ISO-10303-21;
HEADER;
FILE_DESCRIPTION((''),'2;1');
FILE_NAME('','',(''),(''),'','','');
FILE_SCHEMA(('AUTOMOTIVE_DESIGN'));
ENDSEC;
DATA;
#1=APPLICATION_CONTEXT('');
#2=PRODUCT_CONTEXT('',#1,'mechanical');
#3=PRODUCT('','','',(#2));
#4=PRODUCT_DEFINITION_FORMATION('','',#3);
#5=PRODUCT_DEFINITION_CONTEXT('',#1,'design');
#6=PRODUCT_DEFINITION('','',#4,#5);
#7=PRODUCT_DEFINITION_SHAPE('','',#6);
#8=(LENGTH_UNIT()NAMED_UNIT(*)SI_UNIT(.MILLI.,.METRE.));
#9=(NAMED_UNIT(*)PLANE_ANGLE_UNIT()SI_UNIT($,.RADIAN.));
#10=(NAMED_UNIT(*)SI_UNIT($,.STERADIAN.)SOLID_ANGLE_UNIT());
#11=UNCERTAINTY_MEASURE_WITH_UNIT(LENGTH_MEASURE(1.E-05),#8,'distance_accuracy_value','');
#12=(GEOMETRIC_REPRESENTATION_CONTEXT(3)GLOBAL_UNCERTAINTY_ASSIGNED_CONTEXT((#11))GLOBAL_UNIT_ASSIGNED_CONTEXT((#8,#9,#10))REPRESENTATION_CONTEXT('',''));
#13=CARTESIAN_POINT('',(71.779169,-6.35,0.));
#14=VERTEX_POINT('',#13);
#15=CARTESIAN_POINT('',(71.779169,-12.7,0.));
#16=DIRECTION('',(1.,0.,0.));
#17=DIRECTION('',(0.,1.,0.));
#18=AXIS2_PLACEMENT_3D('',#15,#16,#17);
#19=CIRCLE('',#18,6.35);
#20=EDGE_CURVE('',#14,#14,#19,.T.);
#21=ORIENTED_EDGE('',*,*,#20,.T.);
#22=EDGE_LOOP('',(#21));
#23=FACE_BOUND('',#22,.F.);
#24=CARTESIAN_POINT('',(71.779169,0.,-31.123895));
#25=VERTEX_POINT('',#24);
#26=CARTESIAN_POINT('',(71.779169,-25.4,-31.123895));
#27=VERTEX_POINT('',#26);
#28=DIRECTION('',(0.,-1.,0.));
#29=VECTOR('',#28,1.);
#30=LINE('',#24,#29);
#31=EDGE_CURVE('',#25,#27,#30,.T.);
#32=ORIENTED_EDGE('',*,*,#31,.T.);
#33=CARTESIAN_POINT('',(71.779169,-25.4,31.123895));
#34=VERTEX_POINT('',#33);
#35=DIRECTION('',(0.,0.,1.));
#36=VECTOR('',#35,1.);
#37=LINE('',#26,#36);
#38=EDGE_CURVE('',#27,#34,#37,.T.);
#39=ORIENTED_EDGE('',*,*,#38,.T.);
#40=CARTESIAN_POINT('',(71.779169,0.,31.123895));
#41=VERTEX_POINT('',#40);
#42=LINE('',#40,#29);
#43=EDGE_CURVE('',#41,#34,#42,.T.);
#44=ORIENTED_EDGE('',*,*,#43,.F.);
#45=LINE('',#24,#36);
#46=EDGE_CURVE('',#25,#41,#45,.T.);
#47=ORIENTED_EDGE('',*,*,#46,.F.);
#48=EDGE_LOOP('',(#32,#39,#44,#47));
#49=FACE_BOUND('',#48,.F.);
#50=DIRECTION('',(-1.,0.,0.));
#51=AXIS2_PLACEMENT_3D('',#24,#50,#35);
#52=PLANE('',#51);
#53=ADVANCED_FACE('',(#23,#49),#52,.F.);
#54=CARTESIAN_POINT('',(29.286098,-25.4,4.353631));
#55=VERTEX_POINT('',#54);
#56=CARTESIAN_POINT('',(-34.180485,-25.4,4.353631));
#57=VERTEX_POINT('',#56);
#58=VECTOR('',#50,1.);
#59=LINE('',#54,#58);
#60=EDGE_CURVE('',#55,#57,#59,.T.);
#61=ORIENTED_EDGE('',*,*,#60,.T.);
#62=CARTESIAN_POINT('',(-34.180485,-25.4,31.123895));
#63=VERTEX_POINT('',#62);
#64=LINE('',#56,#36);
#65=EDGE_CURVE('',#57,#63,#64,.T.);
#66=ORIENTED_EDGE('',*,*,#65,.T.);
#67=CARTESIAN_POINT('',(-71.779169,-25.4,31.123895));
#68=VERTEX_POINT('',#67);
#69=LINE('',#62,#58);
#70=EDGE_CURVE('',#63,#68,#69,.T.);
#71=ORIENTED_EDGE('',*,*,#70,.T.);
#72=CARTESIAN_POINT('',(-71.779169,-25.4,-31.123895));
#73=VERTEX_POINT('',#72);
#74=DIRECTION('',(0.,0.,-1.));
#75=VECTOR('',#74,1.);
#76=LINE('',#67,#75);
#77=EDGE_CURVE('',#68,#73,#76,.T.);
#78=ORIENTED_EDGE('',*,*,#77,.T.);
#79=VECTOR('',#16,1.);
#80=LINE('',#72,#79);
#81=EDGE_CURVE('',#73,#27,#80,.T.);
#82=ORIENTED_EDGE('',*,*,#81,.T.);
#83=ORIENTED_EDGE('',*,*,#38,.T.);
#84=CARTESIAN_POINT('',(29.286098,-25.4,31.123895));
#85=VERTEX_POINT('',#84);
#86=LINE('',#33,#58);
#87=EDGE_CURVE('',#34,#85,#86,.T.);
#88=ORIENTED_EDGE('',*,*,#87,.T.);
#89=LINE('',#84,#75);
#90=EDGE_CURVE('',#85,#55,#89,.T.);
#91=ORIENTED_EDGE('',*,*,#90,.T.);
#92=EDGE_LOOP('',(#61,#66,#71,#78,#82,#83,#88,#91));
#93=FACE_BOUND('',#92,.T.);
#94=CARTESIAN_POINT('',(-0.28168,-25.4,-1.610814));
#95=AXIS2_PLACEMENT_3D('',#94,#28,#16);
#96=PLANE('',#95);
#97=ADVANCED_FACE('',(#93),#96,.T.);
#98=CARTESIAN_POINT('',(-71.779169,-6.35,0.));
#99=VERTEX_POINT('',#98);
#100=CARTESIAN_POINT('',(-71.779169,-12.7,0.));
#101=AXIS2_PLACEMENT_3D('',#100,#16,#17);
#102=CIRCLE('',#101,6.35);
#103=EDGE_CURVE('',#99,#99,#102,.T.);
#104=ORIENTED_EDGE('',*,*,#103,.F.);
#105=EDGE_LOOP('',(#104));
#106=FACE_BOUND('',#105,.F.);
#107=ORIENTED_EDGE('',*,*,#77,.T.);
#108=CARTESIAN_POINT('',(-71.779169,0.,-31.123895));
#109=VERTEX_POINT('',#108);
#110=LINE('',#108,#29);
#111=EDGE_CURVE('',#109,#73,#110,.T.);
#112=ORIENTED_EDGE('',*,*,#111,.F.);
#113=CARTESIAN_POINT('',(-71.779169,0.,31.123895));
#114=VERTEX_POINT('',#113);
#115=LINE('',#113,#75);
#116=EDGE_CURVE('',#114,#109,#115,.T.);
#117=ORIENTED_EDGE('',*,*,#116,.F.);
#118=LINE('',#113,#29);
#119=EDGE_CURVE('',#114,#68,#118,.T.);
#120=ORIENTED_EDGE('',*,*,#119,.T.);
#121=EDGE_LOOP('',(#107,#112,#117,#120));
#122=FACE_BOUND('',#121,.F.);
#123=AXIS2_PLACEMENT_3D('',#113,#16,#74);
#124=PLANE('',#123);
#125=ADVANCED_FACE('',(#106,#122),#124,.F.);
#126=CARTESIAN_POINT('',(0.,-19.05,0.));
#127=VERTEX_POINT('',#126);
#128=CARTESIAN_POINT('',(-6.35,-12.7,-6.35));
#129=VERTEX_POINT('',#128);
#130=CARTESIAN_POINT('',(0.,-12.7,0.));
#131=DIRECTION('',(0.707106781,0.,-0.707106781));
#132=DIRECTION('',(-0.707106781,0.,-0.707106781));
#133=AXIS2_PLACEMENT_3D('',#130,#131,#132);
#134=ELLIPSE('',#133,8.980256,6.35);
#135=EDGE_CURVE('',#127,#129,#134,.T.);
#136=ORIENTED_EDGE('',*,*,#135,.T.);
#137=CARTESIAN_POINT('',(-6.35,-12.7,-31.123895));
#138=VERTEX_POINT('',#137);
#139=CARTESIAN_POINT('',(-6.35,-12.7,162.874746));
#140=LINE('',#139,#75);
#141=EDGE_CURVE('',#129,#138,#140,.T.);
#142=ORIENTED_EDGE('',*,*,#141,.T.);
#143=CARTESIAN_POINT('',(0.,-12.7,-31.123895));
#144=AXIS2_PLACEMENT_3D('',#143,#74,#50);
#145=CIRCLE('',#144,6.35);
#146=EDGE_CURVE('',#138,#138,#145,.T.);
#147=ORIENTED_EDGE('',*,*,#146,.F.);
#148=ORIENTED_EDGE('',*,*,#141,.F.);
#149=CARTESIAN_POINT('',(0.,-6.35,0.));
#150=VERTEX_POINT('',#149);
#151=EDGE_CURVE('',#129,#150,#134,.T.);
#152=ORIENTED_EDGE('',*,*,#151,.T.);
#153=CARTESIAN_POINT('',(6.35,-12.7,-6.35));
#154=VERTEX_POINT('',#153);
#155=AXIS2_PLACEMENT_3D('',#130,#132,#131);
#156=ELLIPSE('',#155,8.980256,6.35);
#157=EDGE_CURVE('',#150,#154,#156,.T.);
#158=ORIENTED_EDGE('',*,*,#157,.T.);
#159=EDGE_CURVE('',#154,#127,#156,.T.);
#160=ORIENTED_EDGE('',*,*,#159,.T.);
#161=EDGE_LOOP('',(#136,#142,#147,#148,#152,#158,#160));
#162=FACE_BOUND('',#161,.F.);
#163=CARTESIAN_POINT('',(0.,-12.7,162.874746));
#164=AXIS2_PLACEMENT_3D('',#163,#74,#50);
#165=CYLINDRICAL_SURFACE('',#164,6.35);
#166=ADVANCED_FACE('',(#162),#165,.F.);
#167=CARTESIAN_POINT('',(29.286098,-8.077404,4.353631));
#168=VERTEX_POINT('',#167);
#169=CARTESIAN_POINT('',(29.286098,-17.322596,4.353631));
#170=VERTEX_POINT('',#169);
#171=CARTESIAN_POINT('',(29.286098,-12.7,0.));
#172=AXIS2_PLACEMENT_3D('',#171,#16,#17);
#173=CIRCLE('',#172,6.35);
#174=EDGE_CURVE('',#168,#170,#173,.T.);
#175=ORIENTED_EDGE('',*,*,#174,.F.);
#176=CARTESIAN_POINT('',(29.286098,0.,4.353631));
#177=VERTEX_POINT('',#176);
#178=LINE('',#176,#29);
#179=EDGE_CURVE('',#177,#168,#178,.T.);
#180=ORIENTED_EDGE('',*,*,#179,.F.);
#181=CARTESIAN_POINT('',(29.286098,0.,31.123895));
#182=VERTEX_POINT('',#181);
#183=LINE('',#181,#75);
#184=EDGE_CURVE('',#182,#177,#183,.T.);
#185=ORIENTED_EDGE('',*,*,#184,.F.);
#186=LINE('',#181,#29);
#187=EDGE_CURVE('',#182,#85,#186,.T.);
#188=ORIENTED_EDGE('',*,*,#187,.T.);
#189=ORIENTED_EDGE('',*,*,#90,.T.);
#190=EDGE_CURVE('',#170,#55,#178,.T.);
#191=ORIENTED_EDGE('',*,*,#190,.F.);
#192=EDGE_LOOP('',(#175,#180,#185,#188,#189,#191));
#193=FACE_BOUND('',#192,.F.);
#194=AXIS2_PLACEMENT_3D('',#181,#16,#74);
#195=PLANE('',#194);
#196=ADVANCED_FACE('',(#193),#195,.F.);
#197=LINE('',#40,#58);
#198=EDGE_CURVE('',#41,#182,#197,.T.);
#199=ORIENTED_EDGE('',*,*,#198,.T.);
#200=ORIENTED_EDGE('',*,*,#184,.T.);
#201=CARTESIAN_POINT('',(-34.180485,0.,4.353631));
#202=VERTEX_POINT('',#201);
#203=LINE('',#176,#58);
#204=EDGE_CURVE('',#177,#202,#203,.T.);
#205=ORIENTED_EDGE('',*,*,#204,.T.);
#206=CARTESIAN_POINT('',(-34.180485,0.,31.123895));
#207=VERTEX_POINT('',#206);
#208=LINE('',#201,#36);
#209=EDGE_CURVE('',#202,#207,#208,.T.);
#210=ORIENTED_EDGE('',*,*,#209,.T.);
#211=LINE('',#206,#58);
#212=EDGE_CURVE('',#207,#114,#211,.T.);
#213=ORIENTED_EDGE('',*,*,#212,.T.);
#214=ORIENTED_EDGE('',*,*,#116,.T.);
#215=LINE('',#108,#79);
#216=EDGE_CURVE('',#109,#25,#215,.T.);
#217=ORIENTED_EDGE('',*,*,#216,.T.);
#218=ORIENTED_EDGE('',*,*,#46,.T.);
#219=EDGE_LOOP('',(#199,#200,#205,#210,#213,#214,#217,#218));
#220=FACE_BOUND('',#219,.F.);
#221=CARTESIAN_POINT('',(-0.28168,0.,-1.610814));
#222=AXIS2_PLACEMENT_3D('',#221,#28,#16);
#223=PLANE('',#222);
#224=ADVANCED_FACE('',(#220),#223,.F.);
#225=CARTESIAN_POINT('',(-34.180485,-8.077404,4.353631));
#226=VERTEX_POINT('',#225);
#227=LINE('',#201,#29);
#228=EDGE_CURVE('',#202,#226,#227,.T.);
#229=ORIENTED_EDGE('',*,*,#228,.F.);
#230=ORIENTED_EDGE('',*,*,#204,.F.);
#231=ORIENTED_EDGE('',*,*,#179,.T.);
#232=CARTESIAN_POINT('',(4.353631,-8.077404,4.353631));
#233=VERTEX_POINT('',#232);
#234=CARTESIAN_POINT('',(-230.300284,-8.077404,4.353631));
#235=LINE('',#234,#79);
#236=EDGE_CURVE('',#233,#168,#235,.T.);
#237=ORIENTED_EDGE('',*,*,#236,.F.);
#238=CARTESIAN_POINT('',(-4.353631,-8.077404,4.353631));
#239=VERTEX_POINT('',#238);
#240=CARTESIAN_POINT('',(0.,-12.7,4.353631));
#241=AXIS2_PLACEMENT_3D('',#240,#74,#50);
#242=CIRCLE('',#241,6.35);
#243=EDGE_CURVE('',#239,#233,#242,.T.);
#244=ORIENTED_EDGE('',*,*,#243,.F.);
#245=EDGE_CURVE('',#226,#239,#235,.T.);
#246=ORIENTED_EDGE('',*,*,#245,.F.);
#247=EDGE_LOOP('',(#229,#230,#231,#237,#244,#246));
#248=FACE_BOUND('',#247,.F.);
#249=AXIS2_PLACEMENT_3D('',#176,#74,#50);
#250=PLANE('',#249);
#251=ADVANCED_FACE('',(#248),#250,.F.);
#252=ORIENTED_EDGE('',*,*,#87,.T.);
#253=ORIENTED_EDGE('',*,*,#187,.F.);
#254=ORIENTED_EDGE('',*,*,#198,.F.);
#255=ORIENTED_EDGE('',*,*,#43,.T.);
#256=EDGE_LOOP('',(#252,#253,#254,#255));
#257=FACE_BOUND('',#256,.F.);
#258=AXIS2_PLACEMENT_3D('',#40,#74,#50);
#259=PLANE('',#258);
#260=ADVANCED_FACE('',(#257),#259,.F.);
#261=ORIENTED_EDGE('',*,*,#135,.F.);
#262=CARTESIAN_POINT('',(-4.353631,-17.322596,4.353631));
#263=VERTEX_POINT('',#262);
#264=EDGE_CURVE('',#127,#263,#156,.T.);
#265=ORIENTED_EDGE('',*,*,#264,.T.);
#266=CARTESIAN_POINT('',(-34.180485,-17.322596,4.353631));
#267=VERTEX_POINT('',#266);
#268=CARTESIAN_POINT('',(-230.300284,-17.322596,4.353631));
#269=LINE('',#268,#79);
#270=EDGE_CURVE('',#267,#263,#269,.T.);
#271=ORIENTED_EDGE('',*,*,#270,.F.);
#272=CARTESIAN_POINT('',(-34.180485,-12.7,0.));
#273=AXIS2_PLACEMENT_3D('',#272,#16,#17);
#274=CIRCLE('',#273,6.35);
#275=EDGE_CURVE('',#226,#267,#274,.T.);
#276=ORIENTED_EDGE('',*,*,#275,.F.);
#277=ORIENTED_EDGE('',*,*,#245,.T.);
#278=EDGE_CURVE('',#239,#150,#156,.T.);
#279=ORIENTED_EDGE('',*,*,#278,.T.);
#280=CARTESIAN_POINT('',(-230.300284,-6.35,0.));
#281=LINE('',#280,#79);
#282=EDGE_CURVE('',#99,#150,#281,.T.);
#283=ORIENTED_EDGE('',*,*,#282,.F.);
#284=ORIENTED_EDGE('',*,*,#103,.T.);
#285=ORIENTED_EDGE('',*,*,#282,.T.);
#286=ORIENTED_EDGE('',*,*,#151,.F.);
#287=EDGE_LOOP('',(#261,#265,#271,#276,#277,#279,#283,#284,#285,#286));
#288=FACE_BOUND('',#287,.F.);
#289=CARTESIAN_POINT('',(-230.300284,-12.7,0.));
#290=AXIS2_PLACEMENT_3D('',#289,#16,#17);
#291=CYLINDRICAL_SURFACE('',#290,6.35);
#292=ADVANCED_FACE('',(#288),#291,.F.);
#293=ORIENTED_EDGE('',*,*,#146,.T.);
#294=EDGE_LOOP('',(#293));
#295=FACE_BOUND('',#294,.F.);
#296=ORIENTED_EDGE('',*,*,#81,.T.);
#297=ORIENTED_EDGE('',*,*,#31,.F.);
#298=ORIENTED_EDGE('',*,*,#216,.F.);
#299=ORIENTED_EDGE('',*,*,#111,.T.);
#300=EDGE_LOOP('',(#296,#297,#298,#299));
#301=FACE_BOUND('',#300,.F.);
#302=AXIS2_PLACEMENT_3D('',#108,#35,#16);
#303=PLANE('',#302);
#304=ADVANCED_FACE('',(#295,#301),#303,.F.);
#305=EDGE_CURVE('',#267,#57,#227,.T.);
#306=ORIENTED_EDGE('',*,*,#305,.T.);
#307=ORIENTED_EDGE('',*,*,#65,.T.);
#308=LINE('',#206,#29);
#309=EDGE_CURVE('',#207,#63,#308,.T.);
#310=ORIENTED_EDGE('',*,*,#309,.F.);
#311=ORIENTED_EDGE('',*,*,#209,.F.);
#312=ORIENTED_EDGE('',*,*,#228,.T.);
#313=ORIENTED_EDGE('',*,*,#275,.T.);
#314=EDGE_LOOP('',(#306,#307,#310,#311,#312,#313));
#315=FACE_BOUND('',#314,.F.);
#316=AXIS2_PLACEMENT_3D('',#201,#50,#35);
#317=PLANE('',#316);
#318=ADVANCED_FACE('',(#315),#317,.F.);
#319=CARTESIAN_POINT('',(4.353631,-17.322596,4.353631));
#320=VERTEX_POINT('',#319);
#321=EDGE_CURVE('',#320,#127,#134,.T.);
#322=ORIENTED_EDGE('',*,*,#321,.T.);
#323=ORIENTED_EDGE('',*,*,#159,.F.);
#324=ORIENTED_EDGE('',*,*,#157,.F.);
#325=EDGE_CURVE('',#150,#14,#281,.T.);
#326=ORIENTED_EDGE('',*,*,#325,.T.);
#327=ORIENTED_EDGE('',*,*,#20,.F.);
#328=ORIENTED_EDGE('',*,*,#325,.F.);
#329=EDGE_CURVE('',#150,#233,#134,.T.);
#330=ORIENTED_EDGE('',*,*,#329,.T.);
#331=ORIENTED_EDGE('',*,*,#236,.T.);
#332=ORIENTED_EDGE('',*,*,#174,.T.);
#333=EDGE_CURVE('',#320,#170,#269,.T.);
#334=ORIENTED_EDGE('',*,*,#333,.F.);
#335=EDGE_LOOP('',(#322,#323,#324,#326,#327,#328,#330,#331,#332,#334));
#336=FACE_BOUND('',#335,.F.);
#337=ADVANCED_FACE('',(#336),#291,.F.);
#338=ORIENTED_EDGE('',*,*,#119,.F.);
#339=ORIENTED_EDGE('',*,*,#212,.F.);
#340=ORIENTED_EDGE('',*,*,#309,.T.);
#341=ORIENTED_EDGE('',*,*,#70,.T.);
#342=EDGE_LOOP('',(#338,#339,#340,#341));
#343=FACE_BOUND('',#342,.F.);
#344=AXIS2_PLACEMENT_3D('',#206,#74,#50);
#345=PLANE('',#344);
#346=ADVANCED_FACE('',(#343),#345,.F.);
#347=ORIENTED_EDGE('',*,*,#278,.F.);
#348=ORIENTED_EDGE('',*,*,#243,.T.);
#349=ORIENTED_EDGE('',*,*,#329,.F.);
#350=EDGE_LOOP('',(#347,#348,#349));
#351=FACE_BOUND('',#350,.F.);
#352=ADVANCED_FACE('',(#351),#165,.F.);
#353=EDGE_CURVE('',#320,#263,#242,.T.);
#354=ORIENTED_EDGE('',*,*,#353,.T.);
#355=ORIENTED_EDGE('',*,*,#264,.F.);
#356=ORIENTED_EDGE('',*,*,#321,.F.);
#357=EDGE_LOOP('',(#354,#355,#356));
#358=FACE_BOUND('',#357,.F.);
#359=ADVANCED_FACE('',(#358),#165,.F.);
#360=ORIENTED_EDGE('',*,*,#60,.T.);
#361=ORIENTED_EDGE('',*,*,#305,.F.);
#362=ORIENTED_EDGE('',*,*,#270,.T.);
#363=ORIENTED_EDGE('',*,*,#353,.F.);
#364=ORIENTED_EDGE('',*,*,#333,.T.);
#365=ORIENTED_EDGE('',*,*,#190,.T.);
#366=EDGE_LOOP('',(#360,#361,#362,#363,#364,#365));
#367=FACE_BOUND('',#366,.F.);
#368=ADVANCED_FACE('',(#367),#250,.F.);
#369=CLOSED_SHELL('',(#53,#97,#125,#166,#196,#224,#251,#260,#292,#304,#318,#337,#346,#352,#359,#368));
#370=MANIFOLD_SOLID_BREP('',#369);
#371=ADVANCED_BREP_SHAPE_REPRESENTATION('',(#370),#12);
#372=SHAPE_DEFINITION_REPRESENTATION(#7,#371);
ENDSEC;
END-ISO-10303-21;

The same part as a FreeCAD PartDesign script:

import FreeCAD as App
import Part
import Sketcher
Q = App.Units.Quantity

doc = App.newDocument("Part")
params = doc.addObject("Spreadsheet::Sheet", "Params")
for row, (alias, value) in enumerate([
    ("pad1_length", "1 in"),
    ("sketch2_diameter", "0.5 in"),
    ("hole_diameter", "0.5 in"),
    ("sketch3_diameter", "0.5 in"),
    ("hole2_diameter", "0.5 in"),
], start=1):
    params.set(f"A{row}", alias)
    params.set(f"B{row}", "=" + value)
    params.setAlias(f"B{row}", alias)

body = doc.addObject("PartDesign::Body", "Body")

# Sketch on XZ plane
sketch1 = doc.addObject("Sketcher::SketchObject", "Sketch")
body.addObject(sketch1)
sketch1.AttachmentSupport = (doc.XZ_Plane, [""])
sketch1.MapMode = "FlatFace"
sketch1.addGeometry([
    Part.LineSegment(App.Vector(-34, 31, 0), App.Vector(-72, 31, 0)),  # 0
    Part.LineSegment(App.Vector(-72, 31, 0), App.Vector(-72, -31, 0)),  # 1
    Part.LineSegment(App.Vector(-72, -31, 0), App.Vector(72, -31, 0)),  # 2
    Part.LineSegment(App.Vector(72, -31, 0), App.Vector(72, 31, 0)),  # 3
    Part.LineSegment(App.Vector(72, 31, 0), App.Vector(29, 31, 0)),  # 4
    Part.LineSegment(App.Vector(29, 31, 0), App.Vector(29, 4, 0)),  # 5
    Part.LineSegment(App.Vector(29, 4, 0), App.Vector(-34, 4, 0)),  # 6
    Part.LineSegment(App.Vector(-34, 4, 0), App.Vector(-34, 31, 0)),  # 7
], False)
sketch1.addConstraint([
    Sketcher.Constraint("Coincident", 0, 2, 1, 1),
    Sketcher.Constraint("Coincident", 1, 2, 2, 1),
    Sketcher.Constraint("Coincident", 2, 2, 3, 1),
    Sketcher.Constraint("Coincident", 3, 2, 4, 1),
    Sketcher.Constraint("Coincident", 4, 2, 5, 1),
    Sketcher.Constraint("Coincident", 5, 2, 6, 1),
    Sketcher.Constraint("Coincident", 6, 2, 7, 1),
    Sketcher.Constraint("Coincident", 7, 2, 0, 1),
    Sketcher.Constraint("Horizontal", 0),
    Sketcher.Constraint("Vertical", 1),
    Sketcher.Constraint("Horizontal", 2),
    Sketcher.Constraint("Vertical", 3),
    Sketcher.Constraint("Horizontal", 4),
    Sketcher.Constraint("Vertical", 5),
    Sketcher.Constraint("Horizontal", 6),
    Sketcher.Constraint("Vertical", 7),
    Sketcher.Constraint("Symmetric", 0, 2, 2, 2, -1, 1),
    Sketcher.Constraint("Horizontal", 0, 2, 3, 2),
    Sketcher.Constraint("DistanceX", 2, 1, 2, 2, 143.558338),
    Sketcher.Constraint("DistanceX", 4, 2, 4, 1, 42.493071),
    Sketcher.Constraint("DistanceY", 1, 2, 1, 1, 62.24779),
    Sketcher.Constraint("DistanceX", 0, 2, 0, 1, 37.598684),
    Sketcher.Constraint("DistanceY", 5, 2, 5, 1, 26.770264),
])
pad1 = doc.addObject("PartDesign::Pad", "Pad")
body.addObject(pad1)
pad1.Profile = sketch1
pad1.setExpression("Length", "Params.pad1_length")

# Sketch on XY plane
sketch2 = doc.addObject("Sketcher::SketchObject", "Sketch001")
body.addObject(sketch2)
sketch2.AttachmentSupport = (doc.XY_Plane, [""])
sketch2.MapMode = "FlatFace"
sketch2.AttachmentOffset = App.Placement(App.Vector(0, 0, 4.353631), App.Rotation())
sketch2.addGeometry(Part.Circle(App.Vector(0, -13, 0), App.Vector(0, 0, 1), 6), False)
sketch2.addConstraint([
    Sketcher.Constraint("PointOnObject", 0, 3, -2),
    Sketcher.Constraint("Diameter", 0, Q("0.5 in")),
    Sketcher.Constraint("DistanceY", 0, 3, -1, 1, Q("0.5 in")),
])
sketch2.setExpression("Constraints[1]", "Params.sketch2_diameter")
doc.recompute()
hole = doc.addObject("PartDesign::Hole", "Hole")
body.addObject(hole)
hole.Profile = sketch2
hole.ThreadType = "None"
hole.setExpression("Diameter", "Params.hole_diameter")
hole.DepthType = "ThroughAll"

# Sketch on YZ plane
sketch3 = doc.addObject("Sketcher::SketchObject", "Sketch002")
body.addObject(sketch3)
sketch3.AttachmentSupport = (doc.YZ_Plane, [""])
sketch3.MapMode = "FlatFace"
sketch3.AttachmentOffset = App.Placement(App.Vector(0, 0, -71.779169), App.Rotation())
sketch3.addGeometry(Part.Circle(App.Vector(-13, 0, 0), App.Vector(0, 0, 1), 6), False)
sketch3.addConstraint([
    Sketcher.Constraint("PointOnObject", 0, 3, -1),
    Sketcher.Constraint("Diameter", 0, Q("0.5 in")),
    Sketcher.Constraint("DistanceX", 0, 3, -1, 1, Q("0.5 in")),
])
sketch3.setExpression("Constraints[1]", "Params.sketch3_diameter")
doc.recompute()
hole2 = doc.addObject("PartDesign::Hole", "Hole001")
body.addObject(hole2)
hole2.Profile = sketch3
hole2.ThreadType = "None"
hole2.setExpression("Diameter", "Params.hole2_diameter")
hole2.DepthType = "ThroughAll"
hole2.Reversed = True

doc.recompute()
